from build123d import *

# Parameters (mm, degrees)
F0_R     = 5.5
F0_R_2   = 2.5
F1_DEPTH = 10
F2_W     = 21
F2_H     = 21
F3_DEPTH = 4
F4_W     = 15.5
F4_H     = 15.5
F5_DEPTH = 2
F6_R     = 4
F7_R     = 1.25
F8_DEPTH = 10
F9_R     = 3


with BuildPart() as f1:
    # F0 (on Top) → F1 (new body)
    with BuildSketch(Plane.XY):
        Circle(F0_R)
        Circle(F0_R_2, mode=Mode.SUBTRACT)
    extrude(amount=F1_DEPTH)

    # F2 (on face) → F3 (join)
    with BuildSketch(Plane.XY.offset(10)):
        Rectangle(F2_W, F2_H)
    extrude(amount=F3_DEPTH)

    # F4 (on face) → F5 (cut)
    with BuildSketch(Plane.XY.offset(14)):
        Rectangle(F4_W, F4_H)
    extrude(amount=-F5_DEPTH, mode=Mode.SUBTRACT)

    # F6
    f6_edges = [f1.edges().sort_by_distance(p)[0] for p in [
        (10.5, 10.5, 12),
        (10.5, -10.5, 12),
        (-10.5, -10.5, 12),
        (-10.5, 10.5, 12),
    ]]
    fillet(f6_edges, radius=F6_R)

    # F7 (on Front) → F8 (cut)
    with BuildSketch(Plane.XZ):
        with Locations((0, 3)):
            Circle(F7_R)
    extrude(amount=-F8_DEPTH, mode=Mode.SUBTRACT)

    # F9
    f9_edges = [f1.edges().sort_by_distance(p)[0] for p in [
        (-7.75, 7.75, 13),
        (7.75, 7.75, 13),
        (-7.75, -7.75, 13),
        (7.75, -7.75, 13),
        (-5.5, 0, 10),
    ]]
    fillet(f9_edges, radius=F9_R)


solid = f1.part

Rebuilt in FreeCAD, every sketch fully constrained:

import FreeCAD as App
import Part
import Sketcher


def edges_at(feature, points):
    """Names of the edges that pass closest to the given points."""
    edges = feature.Shape.Edges
    near = lambda p: min(range(len(edges)), key=lambda i: edges[i].distToShape(Part.Vertex(*p))[0])
    return sorted({f"Edge{near(p) + 1}" for p in points})


def add_polygon(sketch, points):
    """Adds a closed chain of lines whose ends are joined by coincident constraints."""
    first, n = sketch.GeometryCount, len(points)
    for a, b in zip(points, points[1:] + points[:1]):
        sketch.addGeometry(Part.LineSegment(App.Vector(*a, 0), App.Vector(*b, 0)), False)
    for i in range(n):
        sketch.addConstraint(Sketcher.Constraint("Coincident", first + i, 2, first + (i + 1) % n, 1))

doc = App.newDocument("Part")
body = doc.addObject("PartDesign::Body", "Body")

# Sketch on XY plane
sketch1 = body.newObject("Sketcher::SketchObject", "Sketch")
sketch1.AttachmentSupport = (doc.getObject("XY_Plane"), [""])
sketch1.MapMode = "FlatFace"
sketch1.addGeometry(Part.Circle(App.Vector(0, 0, 0), App.Vector(0, 0, 1), 5.5), False)
sketch1.addGeometry(Part.Circle(App.Vector(0, 0, 0), App.Vector(0, 0, 1), 2.5), False)
sketch1.addConstraint(Sketcher.Constraint("Coincident", 0, 3, -1, 1))
sketch1.addConstraint(Sketcher.Constraint("Coincident", 1, 3, -1, 1))
sketch1.addConstraint(Sketcher.Constraint("Diameter", 0, 11.0))
sketch1.addConstraint(Sketcher.Constraint("Diameter", 1, 5.0))
pad1 = body.newObject("PartDesign::Pad", "Pad")
pad1.Profile = sketch1
pad1.Length = 10

# Sketch on XY plane
sketch2 = body.newObject("Sketcher::SketchObject", "Sketch001")
sketch2.AttachmentSupport = (doc.getObject("XY_Plane"), [""])
sketch2.MapMode = "FlatFace"
sketch2.AttachmentOffset = App.Placement(App.Vector(0, 0, 10), App.Rotation())
add_polygon(sketch2, [(-10, 10), (-10, -10), (10, -10), (10, 10)])  # lines 0-3
sketch2.addConstraint(Sketcher.Constraint("Vertical", 0))
sketch2.addConstraint(Sketcher.Constraint("Horizontal", 1))
sketch2.addConstraint(Sketcher.Constraint("Vertical", 2))
sketch2.addConstraint(Sketcher.Constraint("Horizontal", 3))
sketch2.addConstraint(Sketcher.Constraint("Symmetric", 0, 2, 2, 2, -1, 1))
sketch2.addConstraint(Sketcher.Constraint("Equal", 3, 0))
sketch2.addConstraint(Sketcher.Constraint("DistanceX", 1, 1, 1, 2, 21.0))
pad2 = body.newObject("PartDesign::Pad", "Pad001")
pad2.Profile = sketch2
pad2.Length = 4

# Sketch on XY plane
sketch3 = body.newObject("Sketcher::SketchObject", "Sketch002")
sketch3.AttachmentSupport = (doc.getObject("XY_Plane"), [""])
sketch3.MapMode = "FlatFace"
sketch3.AttachmentOffset = App.Placement(App.Vector(0, 0, 14), App.Rotation())
add_polygon(sketch3, [(-8, 8), (-8, -8), (8, -8), (8, 8)])  # lines 0-3
sketch3.addConstraint(Sketcher.Constraint("Vertical", 0))
sketch3.addConstraint(Sketcher.Constraint("Horizontal", 1))
sketch3.addConstraint(Sketcher.Constraint("Vertical", 2))
sketch3.addConstraint(Sketcher.Constraint("Horizontal", 3))
sketch3.addConstraint(Sketcher.Constraint("Symmetric", 0, 2, 2, 2, -1, 1))
sketch3.addConstraint(Sketcher.Constraint("Equal", 3, 0))
sketch3.addConstraint(Sketcher.Constraint("DistanceX", 1, 1, 1, 2, 15.5))
pocket1 = body.newObject("PartDesign::Pocket", "Pocket")
pocket1.Profile = sketch3
pocket1.Length = 2
doc.recompute()

fillet = body.newObject("PartDesign::Fillet", "Fillet")
fillet.Base = (pocket1, edges_at(pocket1, [
    (10.5, 10.5, 12),
    (10.5, -10.5, 12),
    (-10.5, -10.5, 12),
    (-10.5, 10.5, 12),
]))
fillet.Radius = 4

# Sketch on XZ plane
sketch4 = body.newObject("Sketcher::SketchObject", "Sketch003")
sketch4.AttachmentSupport = (doc.getObject("XZ_Plane"), [""])
sketch4.MapMode = "FlatFace"
sketch4.addGeometry(Part.Circle(App.Vector(0, 3, 0), App.Vector(0, 0, 1), 1.2), False)
sketch4.addConstraint(Sketcher.Constraint("PointOnObject", 0, 3, -2))
sketch4.addConstraint(Sketcher.Constraint("Diameter", 0, 2.5))
sketch4.addConstraint(Sketcher.Constraint("DistanceY", -1, 1, 0, 3, 3.0))
pocket2 = body.newObject("PartDesign::Pocket", "Pocket001")
pocket2.Profile = sketch4
pocket2.Length = 10
doc.recompute()

fillet2 = body.newObject("PartDesign::Fillet", "Fillet001")
fillet2.Base = (pocket2, edges_at(pocket2, [
    (-7.75, 7.75, 13),
    (7.75, 7.75, 13),
    (-7.75, -7.75, 13),
    (7.75, -7.75, 13),
    (-5.5, 0, 10),
]))
fillet2.Radius = 3

doc.recompute()
